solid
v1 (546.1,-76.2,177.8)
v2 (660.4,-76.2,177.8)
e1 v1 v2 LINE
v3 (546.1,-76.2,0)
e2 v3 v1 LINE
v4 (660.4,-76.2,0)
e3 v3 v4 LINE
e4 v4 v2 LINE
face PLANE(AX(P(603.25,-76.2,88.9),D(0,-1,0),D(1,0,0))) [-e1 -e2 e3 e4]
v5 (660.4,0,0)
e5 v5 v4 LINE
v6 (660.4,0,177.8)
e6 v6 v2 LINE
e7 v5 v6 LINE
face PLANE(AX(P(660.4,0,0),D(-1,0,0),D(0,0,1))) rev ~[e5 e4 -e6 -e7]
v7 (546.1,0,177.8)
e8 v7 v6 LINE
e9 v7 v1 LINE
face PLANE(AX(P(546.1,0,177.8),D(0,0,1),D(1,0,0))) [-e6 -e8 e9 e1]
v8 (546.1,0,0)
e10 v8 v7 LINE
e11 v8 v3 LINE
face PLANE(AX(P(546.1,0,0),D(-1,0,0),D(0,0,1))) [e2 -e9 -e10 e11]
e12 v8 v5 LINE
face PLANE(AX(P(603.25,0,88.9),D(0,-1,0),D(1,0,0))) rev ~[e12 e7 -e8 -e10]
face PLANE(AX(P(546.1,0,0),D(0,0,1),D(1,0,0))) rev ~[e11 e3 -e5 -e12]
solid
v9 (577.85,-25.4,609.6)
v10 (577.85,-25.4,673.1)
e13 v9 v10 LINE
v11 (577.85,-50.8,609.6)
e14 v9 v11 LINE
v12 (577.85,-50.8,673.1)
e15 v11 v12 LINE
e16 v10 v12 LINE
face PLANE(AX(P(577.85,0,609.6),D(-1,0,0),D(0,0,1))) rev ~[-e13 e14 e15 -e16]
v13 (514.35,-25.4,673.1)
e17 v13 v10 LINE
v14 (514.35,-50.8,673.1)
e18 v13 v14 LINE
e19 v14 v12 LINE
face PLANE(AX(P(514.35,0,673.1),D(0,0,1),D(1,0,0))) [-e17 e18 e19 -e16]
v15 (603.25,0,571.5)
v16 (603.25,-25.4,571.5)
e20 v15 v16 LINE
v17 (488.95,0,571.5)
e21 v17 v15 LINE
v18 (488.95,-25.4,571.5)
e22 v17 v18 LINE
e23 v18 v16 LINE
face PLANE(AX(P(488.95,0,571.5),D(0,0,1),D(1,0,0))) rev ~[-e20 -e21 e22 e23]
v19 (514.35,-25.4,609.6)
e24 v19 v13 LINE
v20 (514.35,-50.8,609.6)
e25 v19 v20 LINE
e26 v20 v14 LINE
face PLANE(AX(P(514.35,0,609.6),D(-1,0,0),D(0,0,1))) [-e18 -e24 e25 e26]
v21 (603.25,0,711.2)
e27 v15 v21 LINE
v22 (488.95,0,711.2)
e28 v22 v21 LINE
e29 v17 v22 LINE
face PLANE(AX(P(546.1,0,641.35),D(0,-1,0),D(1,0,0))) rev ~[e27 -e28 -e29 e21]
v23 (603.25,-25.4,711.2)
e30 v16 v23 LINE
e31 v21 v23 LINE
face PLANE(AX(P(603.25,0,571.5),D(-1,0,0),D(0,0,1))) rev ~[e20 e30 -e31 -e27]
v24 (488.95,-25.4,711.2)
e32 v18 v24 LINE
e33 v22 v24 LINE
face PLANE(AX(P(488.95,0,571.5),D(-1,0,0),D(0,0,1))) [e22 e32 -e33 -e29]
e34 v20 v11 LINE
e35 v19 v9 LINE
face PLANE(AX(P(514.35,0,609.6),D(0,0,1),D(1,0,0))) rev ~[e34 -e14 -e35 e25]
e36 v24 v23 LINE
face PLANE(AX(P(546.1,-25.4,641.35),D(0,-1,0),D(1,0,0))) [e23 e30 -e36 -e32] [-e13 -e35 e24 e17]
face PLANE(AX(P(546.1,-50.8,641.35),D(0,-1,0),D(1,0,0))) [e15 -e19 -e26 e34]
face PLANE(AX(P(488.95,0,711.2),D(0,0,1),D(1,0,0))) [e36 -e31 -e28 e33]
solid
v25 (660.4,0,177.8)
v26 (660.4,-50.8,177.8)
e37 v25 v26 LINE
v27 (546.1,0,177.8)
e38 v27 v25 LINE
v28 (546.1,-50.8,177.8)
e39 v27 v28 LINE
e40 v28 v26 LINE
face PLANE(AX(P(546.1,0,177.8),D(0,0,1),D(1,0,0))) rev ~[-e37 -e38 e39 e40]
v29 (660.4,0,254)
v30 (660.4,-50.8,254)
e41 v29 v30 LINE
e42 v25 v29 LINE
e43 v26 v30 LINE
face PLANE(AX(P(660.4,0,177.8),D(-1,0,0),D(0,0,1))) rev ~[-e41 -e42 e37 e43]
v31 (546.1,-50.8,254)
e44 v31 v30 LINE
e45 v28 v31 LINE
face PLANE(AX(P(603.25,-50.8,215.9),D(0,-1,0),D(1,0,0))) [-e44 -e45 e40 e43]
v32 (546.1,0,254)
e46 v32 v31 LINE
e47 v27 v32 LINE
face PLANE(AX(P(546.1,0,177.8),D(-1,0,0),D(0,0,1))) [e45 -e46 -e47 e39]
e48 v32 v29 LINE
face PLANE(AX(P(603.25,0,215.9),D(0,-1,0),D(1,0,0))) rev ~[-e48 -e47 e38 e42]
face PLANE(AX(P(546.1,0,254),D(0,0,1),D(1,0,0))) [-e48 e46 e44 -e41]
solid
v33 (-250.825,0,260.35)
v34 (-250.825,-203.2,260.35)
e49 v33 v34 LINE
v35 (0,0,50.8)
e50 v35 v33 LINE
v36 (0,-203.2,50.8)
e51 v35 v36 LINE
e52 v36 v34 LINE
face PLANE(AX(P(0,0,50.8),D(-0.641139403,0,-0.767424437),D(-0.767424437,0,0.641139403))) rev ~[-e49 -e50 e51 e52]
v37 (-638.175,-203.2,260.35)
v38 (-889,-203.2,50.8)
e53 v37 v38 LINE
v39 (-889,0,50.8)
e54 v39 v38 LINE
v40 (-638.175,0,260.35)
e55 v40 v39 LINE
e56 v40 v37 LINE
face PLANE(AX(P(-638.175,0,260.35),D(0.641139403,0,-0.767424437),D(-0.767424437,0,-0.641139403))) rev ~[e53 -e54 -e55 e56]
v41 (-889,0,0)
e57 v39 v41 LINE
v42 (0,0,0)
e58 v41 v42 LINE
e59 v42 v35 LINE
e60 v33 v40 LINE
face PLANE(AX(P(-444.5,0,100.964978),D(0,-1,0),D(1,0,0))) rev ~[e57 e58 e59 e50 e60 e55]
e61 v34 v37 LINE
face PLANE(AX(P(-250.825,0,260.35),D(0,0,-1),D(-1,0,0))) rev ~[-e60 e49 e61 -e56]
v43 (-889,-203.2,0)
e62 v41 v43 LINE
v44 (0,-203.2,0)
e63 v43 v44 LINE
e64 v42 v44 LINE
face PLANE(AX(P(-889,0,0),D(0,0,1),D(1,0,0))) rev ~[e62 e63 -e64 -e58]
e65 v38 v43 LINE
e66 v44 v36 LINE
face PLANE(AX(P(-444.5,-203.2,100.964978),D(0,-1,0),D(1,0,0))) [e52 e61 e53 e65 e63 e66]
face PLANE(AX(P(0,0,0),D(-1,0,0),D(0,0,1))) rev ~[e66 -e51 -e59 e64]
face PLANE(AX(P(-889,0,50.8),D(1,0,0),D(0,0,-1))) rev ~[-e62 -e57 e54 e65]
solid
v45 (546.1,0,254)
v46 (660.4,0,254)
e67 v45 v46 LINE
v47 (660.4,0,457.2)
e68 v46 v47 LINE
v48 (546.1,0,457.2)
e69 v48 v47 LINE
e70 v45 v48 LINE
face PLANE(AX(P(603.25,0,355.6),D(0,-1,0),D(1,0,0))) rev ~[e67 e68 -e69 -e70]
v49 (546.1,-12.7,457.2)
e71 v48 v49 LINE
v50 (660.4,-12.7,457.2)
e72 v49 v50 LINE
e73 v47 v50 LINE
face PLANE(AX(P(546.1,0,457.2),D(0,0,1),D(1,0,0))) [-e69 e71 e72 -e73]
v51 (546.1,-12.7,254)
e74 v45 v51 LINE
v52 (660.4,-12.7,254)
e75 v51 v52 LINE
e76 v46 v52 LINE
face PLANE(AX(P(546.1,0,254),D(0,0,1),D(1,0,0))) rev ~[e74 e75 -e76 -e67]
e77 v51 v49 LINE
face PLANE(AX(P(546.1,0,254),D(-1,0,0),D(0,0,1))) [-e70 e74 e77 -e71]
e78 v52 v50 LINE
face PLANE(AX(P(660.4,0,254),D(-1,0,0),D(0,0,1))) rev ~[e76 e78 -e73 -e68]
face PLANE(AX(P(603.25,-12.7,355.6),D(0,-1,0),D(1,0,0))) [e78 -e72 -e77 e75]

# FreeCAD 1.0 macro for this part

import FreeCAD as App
import Part
import Sketcher
Q = App.Units.Quantity


def add_polygon(sketch, points):
    """Adds a closed chain of lines whose ends are joined by coincident constraints."""
    first, n = sketch.GeometryCount, len(points)
    for a, b in zip(points, points[1:] + points[:1]):
        sketch.addGeometry(Part.LineSegment(App.Vector(*a, 0), App.Vector(*b, 0)), False)
    for i in range(n):
        sketch.addConstraint(Sketcher.Constraint("Coincident", first + i, 2, first + (i + 1) % n, 1))

doc = App.newDocument("Part")
body = doc.addObject("PartDesign::Body", "Body")

# Sketch on XZ plane
sketch1 = body.newObject("Sketcher::SketchObject", "Sketch")
sketch1.AttachmentSupport = (doc.getObject("XZ_Plane"), [""])
sketch1.MapMode = "FlatFace"
add_polygon(sketch1, [(0, 0), (0, 50.8), (-250.825, 260.35), (-638.175, 260.35), (-889, 50.8), (-889, 0)])  # lines 0-5
sketch1.addConstraint([
    Sketcher.Constraint("Vertical", 0),
    Sketcher.Constraint("Horizontal", 2),
    Sketcher.Constraint("Vertical", 4),
    Sketcher.Constraint("Horizontal", 5),
    Sketcher.Constraint("Coincident", 5, 2, -1, 1),
    Sketcher.Constraint("Horizontal", 0, 2, 3, 2),
    Sketcher.Constraint("Equal", 1, 3),
    Sketcher.Constraint("DistanceX", 5, 1, 5, 2, Q("35 in")),
    Sketcher.Constraint("DistanceY", 0, 1, 0, 2, Q("2 in")),
    Sketcher.Constraint("DistanceX", 2, 2, 2, 1, Q("15.25 in")),
    Sketcher.Constraint("DistanceY", -1, 1, 1, 2, Q("10.25 in")),
])
pad1 = body.newObject("PartDesign::Pad", "Pad")
pad1.Profile = sketch1
pad1.Length = Q("8 in")
body2 = doc.addObject("PartDesign::Body", "Body001")

# Sketch on XZ plane
sketch2 = body2.newObject("Sketcher::SketchObject", "Sketch001")
sketch2.AttachmentSupport = (doc.getObject("XZ_Plane001"), [""])
sketch2.MapMode = "FlatFace"
add_polygon(sketch2, [(546.1, 177.8), (546.1, 0), (660.4, 0), (660.4, 177.8)])  # lines 0-3
sketch2.addConstraint([
    Sketcher.Constraint("Vertical", 0),
    Sketcher.Constraint("Horizontal", 1),
    Sketcher.Constraint("Vertical", 2),
    Sketcher.Constraint("Horizontal", 3),
    Sketcher.Constraint("PointOnObject", 0, 2, -1),
    Sketcher.Constraint("DistanceY", 0, 2, 0, 1, Q("7 in")),
    Sketcher.Constraint("DistanceX", 1, 1, 1, 2, Q("4.5 in")),
    Sketcher.Constraint("DistanceX", -1, 1, 1, 2, Q("26 in")),
])
pad2 = body2.newObject("PartDesign::Pad", "Pad001")
pad2.Profile = sketch2
pad2.Length = Q("3 in")
body3 = doc.addObject("PartDesign::Body", "Body002")

# Sketch on XZ plane
sketch3 = body3.newObject("Sketcher::SketchObject", "Sketch002")
sketch3.AttachmentSupport = (doc.getObject("XZ_Plane002"), [""])
sketch3.MapMode = "FlatFace"
add_polygon(sketch3, [(546.1, 457.2), (546.1, 254), (660.4, 254), (660.4, 457.2)])  # lines 0-3
sketch3.addConstraint([
    Sketcher.Constraint("Vertical", 0),
    Sketcher.Constraint("Horizontal", 1),
    Sketcher.Constraint("Vertical", 2),
    Sketcher.Constraint("Horizontal", 3),
    Sketcher.Constraint("DistanceY", 0, 2, 0, 1, Q("8 in")),
    Sketcher.Constraint("DistanceX", 1, 1, 1, 2, Q("4.5 in")),
    Sketcher.Constraint("DistanceY", -1, 1, 0, 2, Q("10 in")),
    Sketcher.Constraint("DistanceX", -1, 1, 1, 2, Q("26 in")),
])
pad3 = body3.newObject("PartDesign::Pad", "Pad002")
pad3.Profile = sketch3
pad3.Length = Q("0.5 in")
body4 = doc.addObject("PartDesign::Body", "Body003")

# Sketch on XZ plane
sketch4 = body4.newObject("Sketcher::SketchObject", "Sketch003")
sketch4.AttachmentSupport = (doc.getObject("XZ_Plane003"), [""])
sketch4.MapMode = "FlatFace"
add_polygon(sketch4, [(546.1, 254), (546.1, 177.8), (660.4, 177.8), (660.4, 254)])  # lines 0-3
sketch4.addConstraint([
    Sketcher.Constraint("Vertical", 0),
    Sketcher.Constraint("Horizontal", 1),
    Sketcher.Constraint("Vertical", 2),
    Sketcher.Constraint("Horizontal", 3),
    Sketcher.Constraint("DistanceY", 0, 2, 0, 1, Q("3 in")),
    Sketcher.Constraint("DistanceX", 1, 1, 1, 2, Q("4.5 in")),
    Sketcher.Constraint("DistanceY", -1, 1, 0, 2, Q("7 in")),
    Sketcher.Constraint("DistanceX", -1, 1, 1, 2, Q("26 in")),
])
pad4 = body4.newObject("PartDesign::Pad", "Pad003")
pad4.Profile = sketch4
pad4.Length = Q("2 in")
body5 = doc.addObject("PartDesign::Body", "Body004")

# Sketch on XZ plane
sketch5 = body5.newObject("Sketcher::SketchObject", "Sketch004")
sketch5.AttachmentSupport = (doc.getObject("XZ_Plane004"), [""])
sketch5.MapMode = "FlatFace"
add_polygon(sketch5, [(488.95, 711.2), (488.95, 571.5), (603.25, 571.5), (603.25, 711.2)])  # lines 0-3
add_polygon(sketch5, [(577.85, 609.6), (514.35, 609.6), (514.35, 673.1), (577.85, 673.1)])  # lines 4-7
sketch5.addConstraint([
    Sketcher.Constraint("Vertical", 0),
    Sketcher.Constraint("Horizontal", 1),
    Sketcher.Constraint("Vertical", 2),
    Sketcher.Constraint("Horizontal", 3),
    Sketcher.Constraint("Horizontal", 4),
    Sketcher.Constraint("Vertical", 5),
    Sketcher.Constraint("Horizontal", 6),
    Sketcher.Constraint("Vertical", 7),
    Sketcher.Constraint("Equal", 6, 5),
    Sketcher.Constraint("DistanceX", 1, 1, 1, 2, Q("4.5 in")),
    Sketcher.Constraint("DistanceX", 4, 2, 4, 1, Q("2.5 in")),
    Sketcher.Constraint("DistanceY", 0, 2, 0, 1, Q("5.5 in")),
    Sketcher.Constraint("DistanceY", -1, 1, 2, 2, Q("28 in")),
    Sketcher.Constraint("DistanceY", -1, 1, 4, 2, Q("24 in")),
    Sketcher.Constraint("DistanceX", 0, 2, 4, 2, Q("1 in")),
    Sketcher.Constraint("DistanceX", -1, 1, 0, 2, Q("19.25 in")),
])
pad5 = body5.newObject("PartDesign::Pad", "Pad004")
pad5.Profile = sketch5
pad5.Length = Q("1 in")

# Sketch on XZ plane
sketch6 = body5.newObject("Sketcher::SketchObject", "Sketch005")
sketch6.AttachmentSupport = (doc.getObject("XZ_Plane004"), [""])
sketch6.MapMode = "FlatFace"
add_polygon(sketch6, [(514.35, 673.1), (514.35, 609.6), (577.85, 609.6), (577.85, 673.1)])  # lines 0-3
sketch6.addConstraint([
    Sketcher.Constraint("Vertical", 0),
    Sketcher.Constraint("Horizontal", 1),
    Sketcher.Constraint("Vertical", 2),
    Sketcher.Constraint("Horizontal", 3),
    Sketcher.Constraint("Equal", 3, 0),
    Sketcher.Constraint("DistanceX", 1, 1, 1, 2, Q("2.5 in")),
    Sketcher.Constraint("DistanceY", -1, 1, 0, 2, Q("24 in")),
    Sketcher.Constraint("DistanceX", -1, 1, 0, 2, Q("20.25 in")),
])
pad6 = body5.newObject("PartDesign::Pad", "Pad005")
pad6.Profile = sketch6
pad6.Length = Q("2 in")

doc.recompute()
